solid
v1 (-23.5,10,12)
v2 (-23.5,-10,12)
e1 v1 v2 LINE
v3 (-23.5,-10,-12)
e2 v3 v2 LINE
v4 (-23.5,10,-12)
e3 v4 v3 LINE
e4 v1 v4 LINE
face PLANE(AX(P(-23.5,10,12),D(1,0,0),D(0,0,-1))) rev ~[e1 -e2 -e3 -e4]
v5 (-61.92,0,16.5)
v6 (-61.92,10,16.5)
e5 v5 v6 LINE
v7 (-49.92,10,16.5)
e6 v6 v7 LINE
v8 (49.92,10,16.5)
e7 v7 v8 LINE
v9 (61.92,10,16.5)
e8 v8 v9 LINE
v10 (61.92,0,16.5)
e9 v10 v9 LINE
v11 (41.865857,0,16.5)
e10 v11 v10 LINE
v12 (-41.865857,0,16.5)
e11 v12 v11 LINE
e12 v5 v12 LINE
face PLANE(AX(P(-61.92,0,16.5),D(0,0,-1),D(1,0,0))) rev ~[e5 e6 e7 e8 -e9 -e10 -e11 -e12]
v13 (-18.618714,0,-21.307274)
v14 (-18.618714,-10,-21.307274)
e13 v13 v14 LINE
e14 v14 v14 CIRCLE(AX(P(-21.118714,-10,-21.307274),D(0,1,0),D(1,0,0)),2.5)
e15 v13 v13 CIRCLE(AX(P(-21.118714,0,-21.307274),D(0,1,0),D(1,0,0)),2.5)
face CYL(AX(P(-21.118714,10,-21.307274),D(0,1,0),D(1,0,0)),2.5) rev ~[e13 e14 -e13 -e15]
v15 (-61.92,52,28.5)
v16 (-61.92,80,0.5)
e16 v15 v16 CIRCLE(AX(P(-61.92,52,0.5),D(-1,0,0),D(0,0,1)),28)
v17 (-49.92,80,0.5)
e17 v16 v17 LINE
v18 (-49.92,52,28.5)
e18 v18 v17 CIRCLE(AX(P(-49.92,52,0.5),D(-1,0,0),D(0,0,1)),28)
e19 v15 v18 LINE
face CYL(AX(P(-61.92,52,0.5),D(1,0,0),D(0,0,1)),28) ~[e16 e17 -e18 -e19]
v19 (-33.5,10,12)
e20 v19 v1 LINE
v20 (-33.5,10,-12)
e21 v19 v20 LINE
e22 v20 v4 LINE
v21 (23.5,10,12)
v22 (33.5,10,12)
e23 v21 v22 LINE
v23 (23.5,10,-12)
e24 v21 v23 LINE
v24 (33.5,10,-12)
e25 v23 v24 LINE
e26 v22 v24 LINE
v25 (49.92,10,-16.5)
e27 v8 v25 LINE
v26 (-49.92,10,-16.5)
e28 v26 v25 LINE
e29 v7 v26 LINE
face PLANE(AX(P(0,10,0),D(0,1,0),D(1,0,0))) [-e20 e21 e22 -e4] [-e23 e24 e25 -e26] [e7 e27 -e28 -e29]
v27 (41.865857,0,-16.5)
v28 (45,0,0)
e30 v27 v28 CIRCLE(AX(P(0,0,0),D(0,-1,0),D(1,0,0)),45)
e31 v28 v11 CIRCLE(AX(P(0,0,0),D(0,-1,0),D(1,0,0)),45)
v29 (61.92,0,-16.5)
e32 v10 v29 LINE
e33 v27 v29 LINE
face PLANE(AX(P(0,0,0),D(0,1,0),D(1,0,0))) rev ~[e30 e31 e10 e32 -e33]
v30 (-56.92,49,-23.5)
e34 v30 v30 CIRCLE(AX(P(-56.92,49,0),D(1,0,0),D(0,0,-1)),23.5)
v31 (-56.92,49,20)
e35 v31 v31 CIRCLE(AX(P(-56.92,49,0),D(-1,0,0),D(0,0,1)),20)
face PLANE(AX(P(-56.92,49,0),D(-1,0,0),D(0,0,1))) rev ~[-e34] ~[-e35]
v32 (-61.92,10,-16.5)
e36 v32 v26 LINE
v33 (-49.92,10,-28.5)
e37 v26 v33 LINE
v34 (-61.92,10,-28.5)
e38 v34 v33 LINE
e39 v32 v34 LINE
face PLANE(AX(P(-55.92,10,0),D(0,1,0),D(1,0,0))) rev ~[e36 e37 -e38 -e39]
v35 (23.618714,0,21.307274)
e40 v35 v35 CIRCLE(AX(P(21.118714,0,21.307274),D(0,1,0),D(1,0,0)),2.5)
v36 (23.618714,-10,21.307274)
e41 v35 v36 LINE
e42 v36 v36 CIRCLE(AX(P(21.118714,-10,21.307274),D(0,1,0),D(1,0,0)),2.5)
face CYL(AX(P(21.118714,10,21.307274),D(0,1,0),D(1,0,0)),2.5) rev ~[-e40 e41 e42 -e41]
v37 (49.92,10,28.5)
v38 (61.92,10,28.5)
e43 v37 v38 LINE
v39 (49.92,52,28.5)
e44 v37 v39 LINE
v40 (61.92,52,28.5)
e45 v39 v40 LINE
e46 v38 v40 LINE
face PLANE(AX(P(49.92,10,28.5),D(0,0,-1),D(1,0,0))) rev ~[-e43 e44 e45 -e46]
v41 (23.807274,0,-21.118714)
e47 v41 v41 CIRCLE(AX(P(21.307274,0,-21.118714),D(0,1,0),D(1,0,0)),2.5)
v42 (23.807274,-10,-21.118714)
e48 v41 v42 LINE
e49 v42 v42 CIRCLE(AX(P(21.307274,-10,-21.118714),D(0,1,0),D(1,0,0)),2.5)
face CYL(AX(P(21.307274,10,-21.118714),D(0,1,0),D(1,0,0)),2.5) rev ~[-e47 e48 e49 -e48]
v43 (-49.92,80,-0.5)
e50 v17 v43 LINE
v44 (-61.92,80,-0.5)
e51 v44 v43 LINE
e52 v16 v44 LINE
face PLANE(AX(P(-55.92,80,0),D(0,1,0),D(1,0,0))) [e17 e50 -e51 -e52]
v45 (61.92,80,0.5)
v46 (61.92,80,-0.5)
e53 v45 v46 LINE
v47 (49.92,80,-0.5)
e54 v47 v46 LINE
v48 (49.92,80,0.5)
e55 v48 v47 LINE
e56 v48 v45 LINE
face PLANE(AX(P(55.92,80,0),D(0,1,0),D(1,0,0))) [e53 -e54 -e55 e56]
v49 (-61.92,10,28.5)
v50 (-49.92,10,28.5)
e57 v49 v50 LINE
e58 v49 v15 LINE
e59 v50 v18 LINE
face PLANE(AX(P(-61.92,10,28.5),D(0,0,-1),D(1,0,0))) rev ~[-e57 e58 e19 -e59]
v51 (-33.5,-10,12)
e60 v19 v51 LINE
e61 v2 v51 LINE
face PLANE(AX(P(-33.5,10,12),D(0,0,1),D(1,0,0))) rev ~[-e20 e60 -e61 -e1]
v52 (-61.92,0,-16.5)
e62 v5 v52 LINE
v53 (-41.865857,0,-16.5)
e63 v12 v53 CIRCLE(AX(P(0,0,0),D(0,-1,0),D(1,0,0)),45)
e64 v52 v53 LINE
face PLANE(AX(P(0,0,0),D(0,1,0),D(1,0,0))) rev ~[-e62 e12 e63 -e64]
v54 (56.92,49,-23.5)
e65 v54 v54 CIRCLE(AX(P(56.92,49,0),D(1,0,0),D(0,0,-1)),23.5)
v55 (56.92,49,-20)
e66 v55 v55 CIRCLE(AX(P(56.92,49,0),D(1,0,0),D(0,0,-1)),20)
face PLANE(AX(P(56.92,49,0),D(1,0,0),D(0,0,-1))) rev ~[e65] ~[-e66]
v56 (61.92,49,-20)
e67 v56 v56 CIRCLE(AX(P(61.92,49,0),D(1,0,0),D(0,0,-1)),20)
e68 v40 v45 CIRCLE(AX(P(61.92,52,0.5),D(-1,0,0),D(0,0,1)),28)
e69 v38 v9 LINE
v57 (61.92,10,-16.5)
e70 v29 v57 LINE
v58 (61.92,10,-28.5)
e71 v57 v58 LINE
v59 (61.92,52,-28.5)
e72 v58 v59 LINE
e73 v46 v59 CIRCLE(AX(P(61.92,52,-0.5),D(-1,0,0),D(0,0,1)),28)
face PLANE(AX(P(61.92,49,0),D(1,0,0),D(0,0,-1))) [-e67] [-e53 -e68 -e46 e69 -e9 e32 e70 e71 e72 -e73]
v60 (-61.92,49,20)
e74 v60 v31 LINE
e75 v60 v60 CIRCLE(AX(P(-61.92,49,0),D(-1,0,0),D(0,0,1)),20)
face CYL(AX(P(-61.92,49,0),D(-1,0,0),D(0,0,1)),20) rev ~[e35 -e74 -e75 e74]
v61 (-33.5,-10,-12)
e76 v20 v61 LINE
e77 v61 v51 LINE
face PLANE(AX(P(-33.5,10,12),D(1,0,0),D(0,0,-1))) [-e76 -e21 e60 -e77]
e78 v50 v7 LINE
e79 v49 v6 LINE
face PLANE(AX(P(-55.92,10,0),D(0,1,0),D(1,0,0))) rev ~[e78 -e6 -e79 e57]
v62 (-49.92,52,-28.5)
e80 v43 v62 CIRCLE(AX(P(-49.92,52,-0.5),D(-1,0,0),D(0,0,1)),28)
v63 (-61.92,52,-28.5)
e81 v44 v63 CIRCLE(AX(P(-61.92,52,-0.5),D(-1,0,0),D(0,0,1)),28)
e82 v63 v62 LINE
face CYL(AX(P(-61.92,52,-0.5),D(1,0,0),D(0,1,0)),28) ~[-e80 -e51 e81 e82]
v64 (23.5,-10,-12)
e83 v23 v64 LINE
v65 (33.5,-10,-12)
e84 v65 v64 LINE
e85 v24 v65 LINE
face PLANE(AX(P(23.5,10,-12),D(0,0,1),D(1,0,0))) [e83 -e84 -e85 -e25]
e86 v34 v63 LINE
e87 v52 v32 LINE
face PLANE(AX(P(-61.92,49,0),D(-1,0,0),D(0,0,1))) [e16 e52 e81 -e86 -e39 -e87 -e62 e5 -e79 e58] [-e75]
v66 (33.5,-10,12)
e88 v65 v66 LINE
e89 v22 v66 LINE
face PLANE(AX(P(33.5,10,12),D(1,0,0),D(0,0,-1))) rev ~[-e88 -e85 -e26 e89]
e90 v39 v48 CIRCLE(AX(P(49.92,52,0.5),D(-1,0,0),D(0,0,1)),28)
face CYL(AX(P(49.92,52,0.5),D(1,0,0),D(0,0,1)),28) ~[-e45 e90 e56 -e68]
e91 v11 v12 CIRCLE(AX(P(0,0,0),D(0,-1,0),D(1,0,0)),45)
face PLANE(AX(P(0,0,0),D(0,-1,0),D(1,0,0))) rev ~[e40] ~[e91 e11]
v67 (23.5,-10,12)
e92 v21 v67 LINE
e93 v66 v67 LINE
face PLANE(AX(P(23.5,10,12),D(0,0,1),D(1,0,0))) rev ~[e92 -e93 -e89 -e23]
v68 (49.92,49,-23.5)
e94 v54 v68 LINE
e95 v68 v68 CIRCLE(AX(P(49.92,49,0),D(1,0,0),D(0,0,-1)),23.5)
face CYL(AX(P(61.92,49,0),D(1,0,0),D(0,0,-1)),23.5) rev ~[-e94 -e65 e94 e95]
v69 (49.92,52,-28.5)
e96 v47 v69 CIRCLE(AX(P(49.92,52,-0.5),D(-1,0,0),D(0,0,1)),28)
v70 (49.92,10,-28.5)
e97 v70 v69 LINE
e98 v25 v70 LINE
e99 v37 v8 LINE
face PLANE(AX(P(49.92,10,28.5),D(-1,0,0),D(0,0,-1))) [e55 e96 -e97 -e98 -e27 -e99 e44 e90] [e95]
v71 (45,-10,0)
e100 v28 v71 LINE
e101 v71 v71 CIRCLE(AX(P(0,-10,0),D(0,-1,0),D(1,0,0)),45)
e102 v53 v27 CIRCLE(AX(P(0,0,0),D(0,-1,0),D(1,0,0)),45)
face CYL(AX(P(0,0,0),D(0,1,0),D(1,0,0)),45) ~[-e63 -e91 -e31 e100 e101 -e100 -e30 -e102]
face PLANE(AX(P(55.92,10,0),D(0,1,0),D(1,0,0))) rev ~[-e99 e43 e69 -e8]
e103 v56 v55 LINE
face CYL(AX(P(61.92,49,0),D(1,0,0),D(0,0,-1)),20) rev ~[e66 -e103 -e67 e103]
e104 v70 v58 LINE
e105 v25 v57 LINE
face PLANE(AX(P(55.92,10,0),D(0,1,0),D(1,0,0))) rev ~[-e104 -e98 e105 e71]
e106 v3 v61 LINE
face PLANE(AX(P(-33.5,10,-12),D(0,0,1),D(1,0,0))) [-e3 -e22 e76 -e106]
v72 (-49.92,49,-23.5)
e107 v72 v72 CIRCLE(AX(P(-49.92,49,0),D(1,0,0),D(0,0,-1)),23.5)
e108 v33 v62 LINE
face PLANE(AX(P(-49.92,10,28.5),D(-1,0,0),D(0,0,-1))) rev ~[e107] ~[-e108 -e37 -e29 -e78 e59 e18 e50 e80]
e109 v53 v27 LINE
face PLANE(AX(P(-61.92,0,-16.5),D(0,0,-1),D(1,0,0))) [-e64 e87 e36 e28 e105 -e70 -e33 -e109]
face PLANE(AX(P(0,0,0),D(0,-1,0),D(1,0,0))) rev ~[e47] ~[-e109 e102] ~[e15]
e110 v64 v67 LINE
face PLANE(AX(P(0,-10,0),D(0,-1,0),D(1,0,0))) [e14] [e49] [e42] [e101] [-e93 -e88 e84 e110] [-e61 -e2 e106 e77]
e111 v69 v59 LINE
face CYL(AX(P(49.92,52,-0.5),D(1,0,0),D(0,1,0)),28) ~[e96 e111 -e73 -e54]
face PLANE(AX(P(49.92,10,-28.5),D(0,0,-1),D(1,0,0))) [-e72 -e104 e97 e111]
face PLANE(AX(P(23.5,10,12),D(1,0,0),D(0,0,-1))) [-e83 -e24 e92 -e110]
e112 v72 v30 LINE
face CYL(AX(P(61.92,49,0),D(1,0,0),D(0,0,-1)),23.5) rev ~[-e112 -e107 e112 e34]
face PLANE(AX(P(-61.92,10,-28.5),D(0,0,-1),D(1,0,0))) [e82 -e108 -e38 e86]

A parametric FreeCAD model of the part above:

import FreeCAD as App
import Part
import Sketcher

V = App.Vector
Q = App.Units.Quantity


def edges_at(feature, points):
    """Names of the edges that pass closest to the given points."""
    edges = feature.Shape.Edges
    near = lambda p: min(range(len(edges)), key=lambda i: edges[i].distToShape(Part.Vertex(*p))[0])
    return sorted({f"Edge{near(p) + 1}" for p in points})

doc = App.newDocument("Part")
body = doc.addObject("PartDesign::Body", "Body")

# Sketch on XZ plane
sketch1 = body.newObject("Sketcher::SketchObject", "Sketch")
sketch1.AttachmentSupport = (doc.getObject("XZ_Plane"), [""])
sketch1.MapMode = "FlatFace"
sketch1.addGeometry(Part.LineSegment(V(-61.92, -16.5, 0), V(-61.92, 16.5, 0)), False)
sketch1.addGeometry(Part.LineSegment(V(-61.92, 16.5, 0), V(61.92, 16.5, 0)), False)
sketch1.addGeometry(Part.LineSegment(V(61.92, 16.5, 0), V(61.92, -16.5, 0)), False)
sketch1.addGeometry(Part.LineSegment(V(61.92, -16.5, 0), V(-61.92, -16.5, 0)), False)
sketch1.addConstraint(Sketcher.Constraint("Coincident", 0, 2, 1, 1))
sketch1.addConstraint(Sketcher.Constraint("Coincident", 1, 2, 2, 1))
sketch1.addConstraint(Sketcher.Constraint("Coincident", 2, 2, 3, 1))
sketch1.addConstraint(Sketcher.Constraint("Coincident", 3, 2, 0, 1))
sketch1.addConstraint(Sketcher.Constraint("Vertical", 0))
sketch1.addConstraint(Sketcher.Constraint("Horizontal", 1))
sketch1.addConstraint(Sketcher.Constraint("Vertical", 2))
sketch1.addConstraint(Sketcher.Constraint("Horizontal", 3))
sketch1.addConstraint(Sketcher.Constraint("Symmetric", 0, 2, 2, 2, -1, 1))
sketch1.addConstraint(Sketcher.Constraint("DistanceY", 0, 1, 0, 2, Q("33 mm")))
sketch1.addConstraint(Sketcher.Constraint("DistanceX", 1, 1, 1, 2, Q("123.84 mm")))
pad1 = body.newObject("PartDesign::Pad", "Pad")
pad1.Profile = sketch1
pad1.Length = 10
pad1.Reversed = True

# Sketch on XZ plane
sketch2 = body.newObject("Sketcher::SketchObject", "Sketch001")
sketch2.AttachmentSupport = (doc.getObject("XZ_Plane"), [""])
sketch2.MapMode = "FlatFace"
sketch2.AttachmentOffset = App.Placement(V(0, 0, -10), App.Rotation())
sketch2.addGeometry(Part.LineSegment(V(-61.92, -28.5, 0), V(-61.92, 28.5, 0)), False)
sketch2.addGeometry(Part.LineSegment(V(-61.92, 28.5, 0), V(-49.92, 28.5, 0)), False)
sketch2.addGeometry(Part.LineSegment(V(-49.92, 28.5, 0), V(-49.92, -28.5, 0)), False)
sketch2.addGeometry(Part.LineSegment(V(-49.92, -28.5, 0), V(-61.92, -28.5, 0)), False)
sketch2.addGeometry(Part.LineSegment(V(49.92, -28.5, 0), V(49.92, 28.5, 0)), False)
sketch2.addGeometry(Part.LineSegment(V(49.92, 28.5, 0), V(61.92, 28.5, 0)), False)
sketch2.addGeometry(Part.LineSegment(V(61.92, 28.5, 0), V(61.92, -28.5, 0)), False)
sketch2.addGeometry(Part.LineSegment(V(61.92, -28.5, 0), V(49.92, -28.5, 0)), False)
sketch2.addConstraint(Sketcher.Constraint("Coincident", 0, 2, 1, 1))
sketch2.addConstraint(Sketcher.Constraint("Coincident", 1, 2, 2, 1))
sketch2.addConstraint(Sketcher.Constraint("Coincident", 2, 2, 3, 1))
sketch2.addConstraint(Sketcher.Constraint("Coincident", 3, 2, 0, 1))
sketch2.addConstraint(Sketcher.Constraint("Coincident", 4, 2, 5, 1))
sketch2.addConstraint(Sketcher.Constraint("Coincident", 5, 2, 6, 1))
sketch2.addConstraint(Sketcher.Constraint("Coincident", 6, 2, 7, 1))
sketch2.addConstraint(Sketcher.Constraint("Coincident", 7, 2, 4, 1))
sketch2.addConstraint(Sketcher.Constraint("Vertical", 0))
sketch2.addConstraint(Sketcher.Constraint("Horizontal", 1))
sketch2.addConstraint(Sketcher.Constraint("Vertical", 2))
sketch2.addConstraint(Sketcher.Constraint("Horizontal", 3))
sketch2.addConstraint(Sketcher.Constraint("Vertical", 4))
sketch2.addConstraint(Sketcher.Constraint("Horizontal", 5))
sketch2.addConstraint(Sketcher.Constraint("Vertical", 6))
sketch2.addConstraint(Sketcher.Constraint("Horizontal", 7))
sketch2.addConstraint(Sketcher.Constraint("Symmetric", 2, 2, 4, 2, -1, 1))
sketch2.addConstraint(Sketcher.Constraint("Symmetric", 0, 2, 6, 2, -1, 1))
sketch2.addConstraint(Sketcher.Constraint("Horizontal", 1, 2, 4, 2))
sketch2.addConstraint(Sketcher.Constraint("DistanceX", 1, 1, 1, 2, Q("12 mm")))
sketch2.addConstraint(Sketcher.Constraint("DistanceY", 0, 1, 0, 2, Q("57 mm")))
sketch2.addConstraint(Sketcher.Constraint("DistanceX", 0, 2, -1, 1, Q("61.92 mm")))
pad2 = body.newObject("PartDesign::Pad", "Pad001")
pad2.Profile = sketch2
pad2.Length = 70
pad2.Reversed = True

# Sketch on YZ plane
sketch3 = body.newObject("Sketcher::SketchObject", "Sketch002")
sketch3.AttachmentSupport = (doc.getObject("YZ_Plane"), [""])
sketch3.MapMode = "FlatFace"
sketch3.AttachmentOffset = App.Placement(V(0, 0, 61.92), App.Rotation())
sketch3.addGeometry(Part.Circle(V(49, 0, 0), V(0, 0, 1), 23.5), False)
sketch3.addConstraint(Sketcher.Constraint("PointOnObject", 0, 3, -1))
sketch3.addConstraint(Sketcher.Constraint("Diameter", 0, Q("47 mm")))
sketch3.addConstraint(Sketcher.Constraint("DistanceX", -1, 1, 0, 3, Q("49 mm")))
pocket1 = body.newObject("PartDesign::Pocket", "Pocket")
pocket1.Profile = sketch3
pocket1.Type = "ThroughAll"

# Sketch on XZ plane
sketch4 = body.newObject("Sketcher::SketchObject", "Sketch003")
sketch4.AttachmentSupport = (doc.getObject("XZ_Plane"), [""])
sketch4.MapMode = "FlatFace"
sketch4.addGeometry(Part.Circle(V(0, 0, 0), V(0, 0, 1), 45), False)
sketch4.addConstraint(Sketcher.Constraint("Coincident", 0, 3, -1, 1))
sketch4.addConstraint(Sketcher.Constraint("Diameter", 0, Q("90 mm")))
pad3 = body.newObject("PartDesign::Pad", "Pad002")
pad3.Profile = sketch4
pad3.Length = 10

# Sketch on XZ plane
sketch5 = body.newObject("Sketcher::SketchObject", "Sketch004")
sketch5.AttachmentSupport = (doc.getObject("XZ_Plane"), [""])
sketch5.MapMode = "FlatFace"
sketch5.AttachmentOffset = App.Placement(V(0, 0, -10), App.Rotation())
sketch5.addGeometry(Part.Circle(V(21.118714, 21.307274, 0), V(0, 0, 1), 2.5), False)
sketch5.addGeometry(Part.Circle(V(21.307274, -21.118714, 0), V(0, 0, 1), 2.5), False)
sketch5.addGeometry(Part.Circle(V(-21.118714, -21.307274, 0), V(0, 0, 1), 2.5), False)
sketch5.addGeometry(Part.LineSegment(V(-33.5, -12, 0), V(-33.5, 12, 0)), False)
sketch5.addGeometry(Part.LineSegment(V(-33.5, 12, 0), V(-23.5, 12, 0)), False)
sketch5.addGeometry(Part.LineSegment(V(-23.5, 12, 0), V(-23.5, -12, 0)), False)
sketch5.addGeometry(Part.LineSegment(V(-23.5, -12, 0), V(-33.5, -12, 0)), False)
sketch5.addGeometry(Part.LineSegment(V(23.5, -12, 0), V(23.5, 12, 0)), False)
sketch5.addGeometry(Part.LineSegment(V(23.5, 12, 0), V(33.5, 12, 0)), False)
sketch5.addGeometry(Part.LineSegment(V(33.5, 12, 0), V(33.5, -12, 0)), False)
sketch5.addGeometry(Part.LineSegment(V(33.5, -12, 0), V(23.5, -12, 0)), False)
sketch5.addConstraint(Sketcher.Constraint("Coincident", 3, 2, 4, 1))
sketch5.addConstraint(Sketcher.Constraint("Coincident", 4, 2, 5, 1))
sketch5.addConstraint(Sketcher.Constraint("Coincident", 5, 2, 6, 1))
sketch5.addConstraint(Sketcher.Constraint("Coincident", 6, 2, 3, 1))
sketch5.addConstraint(Sketcher.Constraint("Coincident", 7, 2, 8, 1))
sketch5.addConstraint(Sketcher.Constraint("Coincident", 8, 2, 9, 1))
sketch5.addConstraint(Sketcher.Constraint("Coincident", 9, 2, 10, 1))
sketch5.addConstraint(Sketcher.Constraint("Coincident", 10, 2, 7, 1))
sketch5.addConstraint(Sketcher.Constraint("Vertical", 3))
sketch5.addConstraint(Sketcher.Constraint("Horizontal", 4))
sketch5.addConstraint(Sketcher.Constraint("Vertical", 5))
sketch5.addConstraint(Sketcher.Constraint("Horizontal", 6))
sketch5.addConstraint(Sketcher.Constraint("Vertical", 7))
sketch5.addConstraint(Sketcher.Constraint("Horizontal", 8))
sketch5.addConstraint(Sketcher.Constraint("Vertical", 9))
sketch5.addConstraint(Sketcher.Constraint("Horizontal", 10))
sketch5.addConstraint(Sketcher.Constraint("Equal", 0, 1))
sketch5.addConstraint(Sketcher.Constraint("Equal", 1, 2))
sketch5.addConstraint(Sketcher.Constraint("Symmetric", 0, 3, 2, 3, -1, 1))
sketch5.addConstraint(Sketcher.Constraint("Symmetric", 5, 2, 7, 2, -1, 1))
sketch5.addConstraint(Sketcher.Constraint("Symmetric", 3, 2, 9, 2, -1, 1))
sketch5.addConstraint(Sketcher.Constraint("Horizontal", 4, 2, 7, 2))
sketch5.addConstraint(Sketcher.Constraint("Diameter", 0, Q("5 mm")))
sketch5.addConstraint(Sketcher.Constraint("DistanceX", 4, 1, 4, 2, Q("10 mm")))
sketch5.addConstraint(Sketcher.Constraint("DistanceY", 3, 1, 3, 2, Q("24 mm")))
sketch5.addConstraint(Sketcher.Constraint("DistanceX", 4, 2, 7, 2, Q("47 mm")))
sketch5.addConstraint(Sketcher.Constraint("DistanceX", 0, 3, 1, 3, Q("0.18856 mm")))
sketch5.addConstraint(Sketcher.Constraint("DistanceY", 2, 3, 1, 3, Q("0.18856 mm")))
sketch5.addConstraint(Sketcher.Constraint("DistanceX", -1, 1, 0, 3, Q("21.118714 mm")))
sketch5.addConstraint(Sketcher.Constraint("DistanceY", -1, 1, 0, 3, Q("21.307274 mm")))
pocket2 = body.newObject("PartDesign::Pocket", "Pocket001")
pocket2.Profile = sketch5
pocket2.Type = "ThroughAll"
pocket2.Reversed = True
doc.recompute()

fillet = body.newObject("PartDesign::Fillet", "Fillet")
fillet.Base = (pocket2, edges_at(pocket2, [
    (-55.92, 80, 28.5),
    (-55.92, 80, -28.5),
    (55.92, 80, -28.5),
    (55.92, 80, 28.5),
]))
fillet.Radius = 28

# Sketch on YZ plane
sketch6 = body.newObject("Sketcher::SketchObject", "Sketch005")
sketch6.AttachmentSupport = (doc.getObject("YZ_Plane"), [""])
sketch6.MapMode = "FlatFace"
sketch6.AttachmentOffset = App.Placement(V(0, 0, 61.92), App.Rotation())
sketch6.addGeometry(Part.Circle(V(49, 0, 0), V(0, 0, 1), 23.5), False)
sketch6.addGeometry(Part.Circle(V(49, 0, 0), V(0, 0, 1), 20), False)
sketch6.addConstraint(Sketcher.Constraint("Coincident", 1, 3, 0, 3))
sketch6.addConstraint(Sketcher.Constraint("PointOnObject", 0, 3, -1))
sketch6.addConstraint(Sketcher.Constraint("Diameter", 0, Q("47 mm")))
sketch6.addConstraint(Sketcher.Constraint("Diameter", 1, Q("40 mm")))
sketch6.addConstraint(Sketcher.Constraint("DistanceX", -1, 1, 0, 3, Q("49 mm")))
pad4 = body.newObject("PartDesign::Pad", "Pad003")
pad4.Profile = sketch6
pad4.Length = 5
pad4.Reversed = True

# Sketch on YZ plane
sketch7 = body.newObject("Sketcher::SketchObject", "Sketch006")
sketch7.AttachmentSupport = (doc.getObject("YZ_Plane"), [""])
sketch7.MapMode = "FlatFace"
sketch7.AttachmentOffset = App.Placement(V(0, 0, -61.92), App.Rotation())
sketch7.addGeometry(Part.Circle(V(49, 0, 0), V(0, 0, 1), 23.5), False)
sketch7.addGeometry(Part.Circle(V(49, 0, 0), V(0, 0, 1), 20), False)
sketch7.addConstraint(Sketcher.Constraint("Coincident", 1, 3, 0, 3))
sketch7.addConstraint(Sketcher.Constraint("PointOnObject", 0, 3, -1))
sketch7.addConstraint(Sketcher.Constraint("Diameter", 0, Q("47 mm")))
sketch7.addConstraint(Sketcher.Constraint("Diameter", 1, Q("40 mm")))
sketch7.addConstraint(Sketcher.Constraint("DistanceX", -1, 1, 0, 3, Q("49 mm")))
pad5 = body.newObject("PartDesign::Pad", "Pad004")
pad5.Profile = sketch7
pad5.Length = 5

doc.recompute()
